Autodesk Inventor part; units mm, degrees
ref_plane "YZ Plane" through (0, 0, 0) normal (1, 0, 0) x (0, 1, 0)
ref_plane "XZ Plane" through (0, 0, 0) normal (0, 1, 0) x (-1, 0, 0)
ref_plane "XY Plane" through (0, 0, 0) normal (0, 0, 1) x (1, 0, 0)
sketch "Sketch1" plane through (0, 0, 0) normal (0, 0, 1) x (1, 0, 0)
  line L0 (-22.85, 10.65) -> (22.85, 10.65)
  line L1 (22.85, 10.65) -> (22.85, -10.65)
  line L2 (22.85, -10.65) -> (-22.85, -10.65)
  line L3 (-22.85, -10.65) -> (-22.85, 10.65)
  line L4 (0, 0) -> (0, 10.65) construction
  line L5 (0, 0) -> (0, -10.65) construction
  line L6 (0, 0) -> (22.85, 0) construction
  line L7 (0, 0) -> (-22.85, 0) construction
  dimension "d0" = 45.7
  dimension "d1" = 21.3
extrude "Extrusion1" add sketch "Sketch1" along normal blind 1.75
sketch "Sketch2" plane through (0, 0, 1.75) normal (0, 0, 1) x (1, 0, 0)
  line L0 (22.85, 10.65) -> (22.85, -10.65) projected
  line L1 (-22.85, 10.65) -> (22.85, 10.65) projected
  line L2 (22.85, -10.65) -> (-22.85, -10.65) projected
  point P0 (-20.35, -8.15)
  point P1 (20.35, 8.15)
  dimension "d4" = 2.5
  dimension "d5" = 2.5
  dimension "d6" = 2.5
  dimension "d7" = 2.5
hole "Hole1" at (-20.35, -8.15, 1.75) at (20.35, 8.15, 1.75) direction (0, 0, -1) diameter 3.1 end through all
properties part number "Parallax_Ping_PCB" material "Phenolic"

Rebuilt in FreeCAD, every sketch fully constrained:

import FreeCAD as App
import Part
import Sketcher

V = App.Vector


def add_polygon(sketch, points):
    """Adds a closed chain of lines whose ends are joined by coincident constraints."""
    first, n = sketch.GeometryCount, len(points)
    for a, b in zip(points, points[1:] + points[:1]):
        sketch.addGeometry(Part.LineSegment(App.Vector(*a, 0), App.Vector(*b, 0)), False)
    for i in range(n):
        sketch.addConstraint(Sketcher.Constraint("Coincident", first + i, 2, first + (i + 1) % n, 1))

doc = App.newDocument("Part")
params = doc.addObject("Spreadsheet::Sheet", "Params")
for row, (alias, value) in enumerate([
    ("sketch1_width", "45.7 mm"),
    ("sketch1_height", "21.3 mm"),
    ("pad1_length", "1.75 mm"),
    ("sketch2_diameter", "3.1 mm"),
    ("hole_diameter", "3.1 mm"),
], start=1):
    params.set(f"A{row}", alias)
    params.set(f"B{row}", "=" + value)
    params.setAlias(f"B{row}", alias)

body = doc.addObject("PartDesign::Body", "Body")

sketch1 = doc.addObject("Sketcher::SketchObject", "Sketch")
body.addObject(sketch1)
sketch1.AttachmentSupport = (doc.XY_Plane, [""])
sketch1.MapMode = "FlatFace"
add_polygon(sketch1, [(22.85, 10.65), (-22.85, 10.65), (-22.85, -10.65), (22.85, -10.65)])
sketch1.addConstraint([
    Sketcher.Constraint("Horizontal", 0),
    Sketcher.Constraint("Vertical", 1),
    Sketcher.Constraint("Horizontal", 2),
    Sketcher.Constraint("Vertical", 3),
    Sketcher.Constraint("Symmetric", 0, 2, 2, 2, -1, 1),
    Sketcher.Constraint("DistanceX", 0, 2, 0, 1, 45.7),
    Sketcher.Constraint("DistanceY", 1, 2, 1, 1, 21.3),
])
sketch1.setExpression("Constraints[9]", "Params.sketch1_width")
sketch1.setExpression("Constraints[10]", "Params.sketch1_height")
pad1 = doc.addObject("PartDesign::Pad", "Pad")
body.addObject(pad1)
pad1.Profile = sketch1
pad1.setExpression("Length", "Params.pad1_length")

sketch2 = doc.addObject("Sketcher::SketchObject", "Sketch001")
body.addObject(sketch2)
sketch2.AttachmentSupport = (doc.XY_Plane, [""])
sketch2.MapMode = "FlatFace"
sketch2.AttachmentOffset = App.Placement(V(0, 0, 1.75), App.Rotation())
sketch2.addGeometry([
    Part.Circle(V(-20.35, -8.15, 0), V(0, 0, 1), 1.55),
    Part.Circle(V(20.35, 8.15, 0), V(0, 0, 1), 1.55),
], False)
sketch2.addConstraint([
    Sketcher.Constraint("Equal", 0, 1),
    Sketcher.Constraint("Symmetric", 0, 3, 1, 3, -1, 1),
    Sketcher.Constraint("Diameter", 0, 3.1),
    Sketcher.Constraint("DistanceX", 0, 3, 1, 3, 40.7),
    Sketcher.Constraint("DistanceY", 0, 3, 1, 3, 16.3),
])
sketch2.setExpression("Constraints[2]", "Params.sketch2_diameter")
doc.recompute()
hole = doc.addObject("PartDesign::Hole", "Hole")
body.addObject(hole)
hole.Profile = sketch2
hole.ThreadType = "None"
hole.setExpression("Diameter", "Params.hole_diameter")
hole.DepthType = "ThroughAll"

doc.recompute()
